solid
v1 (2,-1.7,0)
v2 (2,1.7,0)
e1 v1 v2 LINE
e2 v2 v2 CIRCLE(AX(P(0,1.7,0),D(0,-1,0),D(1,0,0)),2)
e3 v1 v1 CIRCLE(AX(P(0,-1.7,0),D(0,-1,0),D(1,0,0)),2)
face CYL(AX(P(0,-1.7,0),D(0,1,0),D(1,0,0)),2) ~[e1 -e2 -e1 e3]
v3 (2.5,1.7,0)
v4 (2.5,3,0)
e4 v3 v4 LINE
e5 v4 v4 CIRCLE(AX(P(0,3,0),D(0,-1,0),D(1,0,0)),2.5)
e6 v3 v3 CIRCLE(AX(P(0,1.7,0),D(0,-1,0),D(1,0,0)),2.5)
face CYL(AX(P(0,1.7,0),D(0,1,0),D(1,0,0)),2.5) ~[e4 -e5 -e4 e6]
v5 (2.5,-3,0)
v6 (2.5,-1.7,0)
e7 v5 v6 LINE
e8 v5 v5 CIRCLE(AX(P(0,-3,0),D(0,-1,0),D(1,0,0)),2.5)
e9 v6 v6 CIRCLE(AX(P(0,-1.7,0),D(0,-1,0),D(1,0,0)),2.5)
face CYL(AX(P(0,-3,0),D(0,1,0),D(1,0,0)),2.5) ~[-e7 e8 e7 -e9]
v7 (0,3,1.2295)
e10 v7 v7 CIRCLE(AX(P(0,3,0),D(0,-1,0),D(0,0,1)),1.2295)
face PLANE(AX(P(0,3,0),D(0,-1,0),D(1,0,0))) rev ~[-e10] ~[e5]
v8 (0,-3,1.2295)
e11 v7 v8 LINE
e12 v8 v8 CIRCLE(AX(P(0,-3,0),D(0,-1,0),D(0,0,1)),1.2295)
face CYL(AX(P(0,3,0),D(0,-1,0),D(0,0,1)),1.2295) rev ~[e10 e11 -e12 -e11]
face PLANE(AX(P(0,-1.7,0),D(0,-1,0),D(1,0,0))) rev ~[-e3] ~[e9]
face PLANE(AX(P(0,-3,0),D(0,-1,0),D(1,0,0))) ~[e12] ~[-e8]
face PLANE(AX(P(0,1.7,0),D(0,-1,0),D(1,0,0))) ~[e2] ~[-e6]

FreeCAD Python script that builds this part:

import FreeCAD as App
import Part
import Sketcher

V = App.Vector
Q = App.Units.Quantity


def add_polygon(sketch, points):
    """Adds a closed chain of lines whose ends are joined by coincident constraints."""
    first, n = sketch.GeometryCount, len(points)
    for a, b in zip(points, points[1:] + points[:1]):
        sketch.addGeometry(Part.LineSegment(App.Vector(*a, 0), App.Vector(*b, 0)), False)
    for i in range(n):
        sketch.addConstraint(Sketcher.Constraint("Coincident", first + i, 2, first + (i + 1) % n, 1))

doc = App.newDocument("Part")
params = doc.addObject("Spreadsheet::Sheet", "Params")
for row, (alias, value) in enumerate([
    ("sketch1_height", "6 mm"),
    ("sketch1_height2", "1.3 mm"),
    ("sketch1_width", "2.5 mm"),
    ("sketch1_width2", "0.5 mm"),
    ("revolution_angle", "360 deg"),
    ("hole_diameter", "2.459 mm"),
    ("hole_depth", "6 mm"),
], start=1):
    params.set(f"A{row}", alias)
    params.set(f"B{row}", "=" + value)
    params.setAlias(f"B{row}", alias)

body = doc.addObject("PartDesign::Body", "Body")

# Sketch on XY plane
sketch1 = doc.addObject("Sketcher::SketchObject", "Sketch")
body.addObject(sketch1)
sketch1.AttachmentSupport = (doc.XY_Plane, [""])
sketch1.MapMode = "FlatFace"
add_polygon(sketch1, [(2.5, 3), (0, 3), (0, -3), (2.5, -3), (2.5, -1.7), (2, -1.7), (2, 1.7), (2.5, 1.7)])  # lines 0-7
sketch1.addConstraint(Sketcher.Constraint("Horizontal", 0))
sketch1.addConstraint(Sketcher.Constraint("Vertical", 1))
sketch1.addConstraint(Sketcher.Constraint("Horizontal", 2))
sketch1.addConstraint(Sketcher.Constraint("Vertical", 3))
sketch1.addConstraint(Sketcher.Constraint("Horizontal", 4))
sketch1.addConstraint(Sketcher.Constraint("Vertical", 5))
sketch1.addConstraint(Sketcher.Constraint("Horizontal", 6))
sketch1.addConstraint(Sketcher.Constraint("Vertical", 7))
sketch1.addConstraint(Sketcher.Constraint("Symmetric", 0, 2, 1, 2, -1, 1))
sketch1.addConstraint(Sketcher.Constraint("Symmetric", 3, 2, 6, 2, -1))
sketch1.addConstraint(Sketcher.Constraint("DistanceY", 1, 2, 1, 1, Q("6 mm")))
sketch1.addConstraint(Sketcher.Constraint("DistanceY", 3, 1, 3, 2, Q("1.3 mm")))
sketch1.addConstraint(Sketcher.Constraint("DistanceX", 0, 2, 0, 1, Q("2.5 mm")))
sketch1.addConstraint(Sketcher.Constraint("DistanceX", 4, 2, 4, 1, Q("0.5 mm")))
sketch1.setExpression("Constraints[18]", "Params.sketch1_height")
sketch1.setExpression("Constraints[19]", "Params.sketch1_height2")
sketch1.setExpression("Constraints[20]", "Params.sketch1_width")
sketch1.setExpression("Constraints[21]", "Params.sketch1_width2")
revolution = doc.addObject("PartDesign::Revolution", "Revolution")
body.addObject(revolution)
revolution.Profile = sketch1
revolution.ReferenceAxis = (sketch1, ["V_Axis"])
revolution.setExpression("Angle", "Params.revolution_angle")

# Sketch on XZ plane
sketch2 = doc.addObject("Sketcher::SketchObject", "Sketch001")
body.addObject(sketch2)
sketch2.AttachmentSupport = (doc.XZ_Plane, [""])
sketch2.MapMode = "FlatFace"
sketch2.AttachmentOffset = App.Placement(V(0, 0, -3), App.Rotation())
sketch2.addGeometry(Part.Circle(V(0, 0, 0), V(0, 0, 1), 1.2), False)
sketch2.addConstraint(Sketcher.Constraint("Coincident", 0, 3, -1, 1))
sketch2.addConstraint(Sketcher.Constraint("Diameter", 0, Q("2.459 mm")))
doc.recompute()
hole = doc.addObject("PartDesign::Hole", "Hole")
body.addObject(hole)
hole.Profile = sketch2
hole.ThreadType = "None"
hole.setExpression("Diameter", "Params.hole_diameter")
hole.DepthType = "Dimension"
hole.setExpression("Depth", "Params.hole_depth")
hole.DrillPoint = "Flat"
hole.Reversed = True

doc.recompute()
